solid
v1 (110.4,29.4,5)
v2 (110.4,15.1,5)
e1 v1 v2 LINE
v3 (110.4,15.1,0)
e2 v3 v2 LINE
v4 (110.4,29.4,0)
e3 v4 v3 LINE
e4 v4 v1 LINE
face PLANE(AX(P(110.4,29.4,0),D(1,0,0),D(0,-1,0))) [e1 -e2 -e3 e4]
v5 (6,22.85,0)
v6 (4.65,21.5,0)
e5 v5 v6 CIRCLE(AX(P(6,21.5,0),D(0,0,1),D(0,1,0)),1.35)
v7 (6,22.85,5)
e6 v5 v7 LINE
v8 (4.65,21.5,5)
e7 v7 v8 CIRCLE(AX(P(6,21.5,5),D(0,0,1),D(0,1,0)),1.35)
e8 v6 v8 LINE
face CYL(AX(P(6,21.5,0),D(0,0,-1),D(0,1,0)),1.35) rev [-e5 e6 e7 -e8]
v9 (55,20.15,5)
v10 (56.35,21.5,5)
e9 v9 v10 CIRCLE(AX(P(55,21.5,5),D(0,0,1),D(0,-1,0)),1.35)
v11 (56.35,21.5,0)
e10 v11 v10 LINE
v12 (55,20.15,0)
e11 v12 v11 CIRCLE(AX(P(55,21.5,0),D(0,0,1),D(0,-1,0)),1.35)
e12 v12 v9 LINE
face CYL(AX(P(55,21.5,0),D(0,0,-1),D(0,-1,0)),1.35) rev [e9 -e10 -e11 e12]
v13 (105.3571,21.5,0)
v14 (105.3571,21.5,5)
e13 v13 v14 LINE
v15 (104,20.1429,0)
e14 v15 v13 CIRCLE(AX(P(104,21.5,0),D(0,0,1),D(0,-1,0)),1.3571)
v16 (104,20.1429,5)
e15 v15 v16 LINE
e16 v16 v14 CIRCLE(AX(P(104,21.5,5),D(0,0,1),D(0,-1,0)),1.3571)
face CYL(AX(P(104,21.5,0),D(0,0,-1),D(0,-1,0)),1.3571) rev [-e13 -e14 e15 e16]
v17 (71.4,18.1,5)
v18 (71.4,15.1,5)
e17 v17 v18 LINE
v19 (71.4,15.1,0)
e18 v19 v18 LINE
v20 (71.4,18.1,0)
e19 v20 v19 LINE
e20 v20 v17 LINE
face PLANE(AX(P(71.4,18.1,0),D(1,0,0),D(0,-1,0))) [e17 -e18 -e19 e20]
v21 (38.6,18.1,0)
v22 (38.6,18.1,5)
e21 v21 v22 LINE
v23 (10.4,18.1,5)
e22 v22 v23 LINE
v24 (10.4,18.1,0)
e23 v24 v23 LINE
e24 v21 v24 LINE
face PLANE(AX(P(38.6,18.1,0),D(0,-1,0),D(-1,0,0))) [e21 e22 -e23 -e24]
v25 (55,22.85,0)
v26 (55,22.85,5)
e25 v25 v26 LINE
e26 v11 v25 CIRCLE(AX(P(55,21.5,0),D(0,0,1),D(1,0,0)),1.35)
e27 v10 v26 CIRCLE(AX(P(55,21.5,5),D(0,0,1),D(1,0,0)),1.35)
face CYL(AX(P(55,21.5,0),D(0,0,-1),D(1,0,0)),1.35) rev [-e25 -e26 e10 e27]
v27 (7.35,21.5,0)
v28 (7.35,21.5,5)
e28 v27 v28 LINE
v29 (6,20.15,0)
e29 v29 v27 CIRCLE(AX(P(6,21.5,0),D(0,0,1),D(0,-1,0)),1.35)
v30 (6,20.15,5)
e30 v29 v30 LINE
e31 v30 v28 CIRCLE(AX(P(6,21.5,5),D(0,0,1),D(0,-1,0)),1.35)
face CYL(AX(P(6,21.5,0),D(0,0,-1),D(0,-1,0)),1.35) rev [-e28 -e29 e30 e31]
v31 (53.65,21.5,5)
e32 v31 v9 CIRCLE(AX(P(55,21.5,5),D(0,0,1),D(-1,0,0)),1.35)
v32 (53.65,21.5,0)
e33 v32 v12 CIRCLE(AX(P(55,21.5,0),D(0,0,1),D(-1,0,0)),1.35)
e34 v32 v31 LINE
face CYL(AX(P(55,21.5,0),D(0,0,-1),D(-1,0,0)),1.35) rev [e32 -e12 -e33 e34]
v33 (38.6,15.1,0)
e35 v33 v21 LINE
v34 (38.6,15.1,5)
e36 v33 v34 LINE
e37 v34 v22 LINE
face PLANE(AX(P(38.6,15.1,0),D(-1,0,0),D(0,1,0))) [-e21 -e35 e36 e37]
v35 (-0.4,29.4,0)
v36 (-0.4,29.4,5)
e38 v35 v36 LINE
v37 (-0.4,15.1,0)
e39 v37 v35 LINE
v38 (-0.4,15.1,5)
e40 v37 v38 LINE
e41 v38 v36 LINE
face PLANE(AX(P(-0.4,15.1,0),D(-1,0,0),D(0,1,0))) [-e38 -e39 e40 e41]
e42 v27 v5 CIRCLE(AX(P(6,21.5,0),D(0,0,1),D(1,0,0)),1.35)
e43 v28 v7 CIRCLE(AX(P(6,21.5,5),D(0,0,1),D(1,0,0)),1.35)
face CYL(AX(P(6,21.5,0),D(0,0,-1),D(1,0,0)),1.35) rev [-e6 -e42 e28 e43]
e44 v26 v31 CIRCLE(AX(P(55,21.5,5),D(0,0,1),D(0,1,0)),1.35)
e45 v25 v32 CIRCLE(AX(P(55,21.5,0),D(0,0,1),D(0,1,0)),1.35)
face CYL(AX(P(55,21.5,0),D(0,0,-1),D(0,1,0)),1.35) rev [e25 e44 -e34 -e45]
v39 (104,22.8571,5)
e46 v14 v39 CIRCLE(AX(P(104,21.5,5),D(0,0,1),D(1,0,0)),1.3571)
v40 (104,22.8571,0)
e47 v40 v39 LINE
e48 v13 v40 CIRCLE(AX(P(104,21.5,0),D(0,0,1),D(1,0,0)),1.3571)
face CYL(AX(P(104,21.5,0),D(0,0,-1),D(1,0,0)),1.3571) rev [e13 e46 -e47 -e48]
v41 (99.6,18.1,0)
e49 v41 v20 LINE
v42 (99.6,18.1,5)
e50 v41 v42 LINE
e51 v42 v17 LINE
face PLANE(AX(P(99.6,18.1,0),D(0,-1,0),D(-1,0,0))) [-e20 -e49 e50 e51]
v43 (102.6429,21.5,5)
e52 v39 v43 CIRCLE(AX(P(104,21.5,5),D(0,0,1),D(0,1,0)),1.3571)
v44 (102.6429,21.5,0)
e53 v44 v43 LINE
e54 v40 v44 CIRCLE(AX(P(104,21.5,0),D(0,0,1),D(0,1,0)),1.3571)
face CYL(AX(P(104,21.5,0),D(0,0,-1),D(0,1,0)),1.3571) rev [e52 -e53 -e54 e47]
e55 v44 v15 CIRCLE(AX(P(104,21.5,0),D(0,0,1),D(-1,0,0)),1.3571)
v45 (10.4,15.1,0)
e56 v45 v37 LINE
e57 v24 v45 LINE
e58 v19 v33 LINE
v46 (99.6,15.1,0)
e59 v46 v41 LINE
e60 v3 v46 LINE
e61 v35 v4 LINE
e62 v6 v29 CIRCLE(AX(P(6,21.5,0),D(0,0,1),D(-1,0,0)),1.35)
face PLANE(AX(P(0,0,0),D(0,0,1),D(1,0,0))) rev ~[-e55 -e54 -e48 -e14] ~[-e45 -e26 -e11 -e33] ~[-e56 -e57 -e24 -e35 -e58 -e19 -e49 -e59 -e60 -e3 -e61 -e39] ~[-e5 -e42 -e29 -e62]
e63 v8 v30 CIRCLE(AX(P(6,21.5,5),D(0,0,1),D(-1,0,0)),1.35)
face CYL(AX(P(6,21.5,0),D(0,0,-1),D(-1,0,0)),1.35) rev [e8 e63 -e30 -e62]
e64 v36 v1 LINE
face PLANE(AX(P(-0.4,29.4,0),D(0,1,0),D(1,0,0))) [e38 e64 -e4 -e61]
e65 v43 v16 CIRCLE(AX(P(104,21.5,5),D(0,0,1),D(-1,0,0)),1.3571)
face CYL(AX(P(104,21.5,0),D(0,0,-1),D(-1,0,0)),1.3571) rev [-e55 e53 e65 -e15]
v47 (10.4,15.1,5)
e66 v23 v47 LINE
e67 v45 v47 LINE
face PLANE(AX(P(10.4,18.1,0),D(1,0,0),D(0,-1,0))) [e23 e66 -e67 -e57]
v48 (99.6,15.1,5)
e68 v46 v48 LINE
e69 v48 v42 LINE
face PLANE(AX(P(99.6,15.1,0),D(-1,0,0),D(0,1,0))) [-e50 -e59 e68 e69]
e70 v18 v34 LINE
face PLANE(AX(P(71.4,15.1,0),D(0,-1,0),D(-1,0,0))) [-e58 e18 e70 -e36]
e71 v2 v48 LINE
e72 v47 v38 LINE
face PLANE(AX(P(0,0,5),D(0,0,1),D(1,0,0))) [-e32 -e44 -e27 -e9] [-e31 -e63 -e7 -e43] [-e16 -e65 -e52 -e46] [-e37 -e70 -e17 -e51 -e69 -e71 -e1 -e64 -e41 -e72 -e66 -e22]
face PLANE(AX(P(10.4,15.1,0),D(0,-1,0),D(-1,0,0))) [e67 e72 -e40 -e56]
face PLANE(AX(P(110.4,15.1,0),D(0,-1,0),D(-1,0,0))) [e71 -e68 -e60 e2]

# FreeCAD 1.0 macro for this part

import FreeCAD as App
import Part
import Sketcher


def add_polygon(sketch, points):
    """Adds a closed chain of lines whose ends are joined by coincident constraints."""
    first, n = sketch.GeometryCount, len(points)
    for a, b in zip(points, points[1:] + points[:1]):
        sketch.addGeometry(Part.LineSegment(App.Vector(*a, 0), App.Vector(*b, 0)), False)
    for i in range(n):
        sketch.addConstraint(Sketcher.Constraint("Coincident", first + i, 2, first + (i + 1) % n, 1))

doc = App.newDocument("Part")
params = doc.addObject("Spreadsheet::Sheet", "Params")
for row, (alias, value) in enumerate([
    ("sketch1_diameter", "2.7 mm"),
    ("sketch1_height", "3 mm"),
    ("sketch1_width", "10.8 mm"),
    ("sketch1_width2", "28.2 mm"),
    ("sketch1_width3", "32.8 mm"),
    ("pad1_length", "5 mm"),
], start=1):
    params.set(f"A{row}", alias)
    params.set(f"B{row}", "=" + value)
    params.setAlias(f"B{row}", alias)

body = doc.addObject("PartDesign::Body", "Body")

# Sketch on XY plane
sketch1 = doc.addObject("Sketcher::SketchObject", "Sketch")
body.addObject(sketch1)
sketch1.AttachmentSupport = (doc.XY_Plane, [""])
sketch1.MapMode = "FlatFace"
add_polygon(sketch1, [(-0.4, 29.4), (-0.4, 15.1), (10.4, 15.1), (10.4, 18.1), (38.6, 18.1), (38.6, 15.1), (71.4, 15.1), (71.4, 18.1), (99.6, 18.1), (99.6, 15.1), (110.4, 15.1), (110.4, 29.4)])  # lines 0-11
sketch1.addGeometry(Part.Circle(App.Vector(6, 21.5, 0), App.Vector(0, 0, 1), 1.3), False)  # 12
sketch1.addGeometry(Part.Circle(App.Vector(55, 21.5, 0), App.Vector(0, 0, 1), 1.4), False)  # 13
sketch1.addGeometry(Part.Circle(App.Vector(104, 21.5, 0), App.Vector(0, 0, 1), 1.4), False)  # 14
sketch1.addConstraint([
    Sketcher.Constraint("Vertical", 0),
    Sketcher.Constraint("Horizontal", 1),
    Sketcher.Constraint("Vertical", 2),
    Sketcher.Constraint("Horizontal", 3),
    Sketcher.Constraint("Vertical", 4),
    Sketcher.Constraint("Horizontal", 5),
    Sketcher.Constraint("Vertical", 6),
    Sketcher.Constraint("Horizontal", 7),
    Sketcher.Constraint("Vertical", 8),
    Sketcher.Constraint("Horizontal", 9),
    Sketcher.Constraint("Vertical", 10),
    Sketcher.Constraint("Horizontal", 11),
    Sketcher.Constraint("Equal", 12, 13),
    Sketcher.Constraint("Horizontal", 12, 3, 13, 3),
    Sketcher.Constraint("Horizontal", 13, 3, 14, 3),
    Sketcher.Constraint("Horizontal", 1, 2, 4, 2),
    Sketcher.Constraint("Horizontal", 3, 2, 6, 2),
    Sketcher.Constraint("Horizontal", 5, 2, 8, 2),
    Sketcher.Constraint("Equal", 3, 7),
    Sketcher.Constraint("Equal", 1, 9),
    Sketcher.Constraint("Diameter", 12, 2.7),
    Sketcher.Constraint("DistanceY", 2, 1, 2, 2, 3.0),
    Sketcher.Constraint("DistanceX", 1, 1, 1, 2, 10.8),
    Sketcher.Constraint("DistanceX", 3, 1, 3, 2, 28.2),
    Sketcher.Constraint("DistanceX", 5, 1, 5, 2, 32.8),
    Sketcher.Constraint("DistanceY", 0, 2, 0, 1, 14.3),
    Sketcher.Constraint("DistanceX", -1, 1, 12, 3, 6.0),
    Sketcher.Constraint("DistanceX", -1, 1, 13, 3, 55.0),
    Sketcher.Constraint("DistanceX", -1, 1, 14, 3, 104.0),
    Sketcher.Constraint("Diameter", 14, 2.7142),
    Sketcher.Constraint("DistanceY", -1, 1, 12, 3, 21.5),
    Sketcher.Constraint("DistanceX", 0, 2, -1, 1, 0.4),
    Sketcher.Constraint("DistanceY", -1, 1, 0, 2, 15.1),
])
sketch1.setExpression("Constraints[32]", "Params.sketch1_diameter")
sketch1.setExpression("Constraints[33]", "Params.sketch1_height")
sketch1.setExpression("Constraints[34]", "Params.sketch1_width")
sketch1.setExpression("Constraints[35]", "Params.sketch1_width2")
sketch1.setExpression("Constraints[36]", "Params.sketch1_width3")
pad1 = doc.addObject("PartDesign::Pad", "Pad")
body.addObject(pad1)
pad1.Profile = sketch1
pad1.setExpression("Length", "Params.pad1_length")

doc.recompute()
